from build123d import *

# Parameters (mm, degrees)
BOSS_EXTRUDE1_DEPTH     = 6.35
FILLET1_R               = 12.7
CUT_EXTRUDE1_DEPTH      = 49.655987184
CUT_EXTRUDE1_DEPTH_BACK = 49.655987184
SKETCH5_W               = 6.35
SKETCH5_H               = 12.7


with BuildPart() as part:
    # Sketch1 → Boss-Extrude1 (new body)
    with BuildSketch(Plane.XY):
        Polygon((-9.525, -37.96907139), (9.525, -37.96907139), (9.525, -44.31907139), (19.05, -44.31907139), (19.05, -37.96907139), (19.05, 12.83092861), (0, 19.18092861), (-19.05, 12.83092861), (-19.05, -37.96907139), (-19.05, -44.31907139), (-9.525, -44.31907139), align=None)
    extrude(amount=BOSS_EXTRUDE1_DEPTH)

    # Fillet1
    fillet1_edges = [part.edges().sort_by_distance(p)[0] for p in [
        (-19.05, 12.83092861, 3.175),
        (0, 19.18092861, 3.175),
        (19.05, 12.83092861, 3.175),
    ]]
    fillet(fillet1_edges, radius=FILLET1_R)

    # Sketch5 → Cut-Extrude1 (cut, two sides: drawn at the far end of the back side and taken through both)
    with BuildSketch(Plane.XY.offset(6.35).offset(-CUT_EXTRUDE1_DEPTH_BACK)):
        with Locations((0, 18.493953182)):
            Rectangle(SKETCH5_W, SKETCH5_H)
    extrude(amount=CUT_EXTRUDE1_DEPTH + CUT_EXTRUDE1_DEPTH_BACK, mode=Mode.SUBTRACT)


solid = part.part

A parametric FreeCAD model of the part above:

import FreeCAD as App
import Part
import Sketcher
from FreeCAD import Vector
Q = App.Units.Quantity


def edges_at(feature, points):
    """Names of the edges that pass closest to the given points."""
    edges = feature.Shape.Edges
    near = lambda p: min(range(len(edges)), key=lambda i: edges[i].distToShape(Part.Vertex(*p))[0])
    return sorted({f"Edge{near(p) + 1}" for p in points})

doc = App.newDocument("Part")
params = doc.addObject("Spreadsheet::Sheet", "Params")
for row, (alias, value) in enumerate([
    ("sketch1_width", "0.75 in"),
    ("sketch1_height", "0.25 in"),
    ("pad1_length", "0.25 in"),
    ("fillet_radius", "0.5 in"),
    ("sketch2_height", "0.5 in"),
    ("sketch2_width", "0.25 in"),
], start=1):
    params.set(f"A{row}", alias)
    params.set(f"B{row}", "=" + value)
    params.setAlias(f"B{row}", alias)

body = doc.addObject("PartDesign::Body", "Body")

# Sketch on XY plane
sketch1 = body.newObject("Sketcher::SketchObject", "Sketch")
sketch1.AttachmentSupport = (doc.getObject("XY_Plane"), [""])
sketch1.MapMode = "FlatFace"
sketch1.addGeometry(Part.LineSegment(Vector(-10, -38, 0), Vector(10, -38, 0)), False)
sketch1.addGeometry(Part.LineSegment(Vector(10, -38, 0), Vector(10, -44, 0)), False)
sketch1.addGeometry(Part.LineSegment(Vector(10, -44, 0), Vector(19, -44, 0)), False)
sketch1.addGeometry(Part.LineSegment(Vector(19, -44, 0), Vector(19, 13, 0)), False)
sketch1.addGeometry(Part.LineSegment(Vector(19, 13, 0), Vector(0, 19, 0)), False)
sketch1.addGeometry(Part.LineSegment(Vector(0, 19, 0), Vector(-19, 13, 0)), False)
sketch1.addGeometry(Part.LineSegment(Vector(-19, 13, 0), Vector(-19, -44, 0)), False)
sketch1.addGeometry(Part.LineSegment(Vector(-19, -44, 0), Vector(-10, -44, 0)), False)
sketch1.addGeometry(Part.LineSegment(Vector(-10, -44, 0), Vector(-10, -38, 0)), False)
sketch1.addConstraint(Sketcher.Constraint("Coincident", 0, 2, 1, 1))
sketch1.addConstraint(Sketcher.Constraint("Coincident", 1, 2, 2, 1))
sketch1.addConstraint(Sketcher.Constraint("Coincident", 2, 2, 3, 1))
sketch1.addConstraint(Sketcher.Constraint("Coincident", 3, 2, 4, 1))
sketch1.addConstraint(Sketcher.Constraint("Coincident", 4, 2, 5, 1))
sketch1.addConstraint(Sketcher.Constraint("Coincident", 5, 2, 6, 1))
sketch1.addConstraint(Sketcher.Constraint("Coincident", 6, 2, 7, 1))
sketch1.addConstraint(Sketcher.Constraint("Coincident", 7, 2, 8, 1))
sketch1.addConstraint(Sketcher.Constraint("Coincident", 8, 2, 0, 1))
sketch1.addConstraint(Sketcher.Constraint("Horizontal", 0))
sketch1.addConstraint(Sketcher.Constraint("Vertical", 1))
sketch1.addConstraint(Sketcher.Constraint("Horizontal", 2))
sketch1.addConstraint(Sketcher.Constraint("Vertical", 3))
sketch1.addConstraint(Sketcher.Constraint("Vertical", 6))
sketch1.addConstraint(Sketcher.Constraint("Horizontal", 7))
sketch1.addConstraint(Sketcher.Constraint("Vertical", 8))
sketch1.addConstraint(Sketcher.Constraint("Symmetric", 3, 2, 5, 2, -2))
sketch1.addConstraint(Sketcher.Constraint("Symmetric", 1, 2, 7, 2, -2))
sketch1.addConstraint(Sketcher.Constraint("PointOnObject", 4, 2, -2))
sketch1.addConstraint(Sketcher.Constraint("DistanceY", 0, 2, 3, 2, Q("2 in")))
sketch1.addConstraint(Sketcher.Constraint("DistanceX", 0, 1, 0, 2, Q("0.75 in")))
sketch1.addConstraint(Sketcher.Constraint("DistanceY", 1, 2, 1, 1, Q("0.25 in")))
sketch1.addConstraint(Sketcher.Constraint("DistanceY", 1, 2, 4, 2, Q("2.5 in")))
sketch1.addConstraint(Sketcher.Constraint("DistanceX", 5, 2, 3, 2, Q("1.5 in")))
sketch1.addConstraint(Sketcher.Constraint("DistanceY", 0, 2, -1, 1, 37.969071))
sketch1.setExpression("Constraints[20]", "Params.sketch1_width")
sketch1.setExpression("Constraints[21]", "Params.sketch1_height")
pad1 = body.newObject("PartDesign::Pad", "Pad")
pad1.Profile = sketch1
pad1.setExpression("Length", "Params.pad1_length")
doc.recompute()

fillet = body.newObject("PartDesign::Fillet", "Fillet")
fillet.Base = (pad1, edges_at(pad1, [(-19.05, 12.831, 3.175), (0, 19.181, 3.175), (19.05, 12.831, 3.175)]))
fillet.setExpression("Radius", "Params.fillet_radius")

# Sketch on XY plane
sketch2 = body.newObject("Sketcher::SketchObject", "Sketch001")
sketch2.AttachmentSupport = (doc.getObject("XY_Plane"), [""])
sketch2.MapMode = "FlatFace"
sketch2.AttachmentOffset = App.Placement(Vector(0, 0, 0.25 * 25.4), App.Rotation())
sketch2.addGeometry(Part.LineSegment(Vector(-3, 25, 0), Vector(-3, 12, 0)), False)
sketch2.addGeometry(Part.LineSegment(Vector(-3, 12, 0), Vector(3, 12, 0)), False)
sketch2.addGeometry(Part.LineSegment(Vector(3, 12, 0), Vector(3, 25, 0)), False)
sketch2.addGeometry(Part.LineSegment(Vector(3, 25, 0), Vector(-3, 25, 0)), False)
sketch2.addConstraint(Sketcher.Constraint("Coincident", 0, 2, 1, 1))
sketch2.addConstraint(Sketcher.Constraint("Coincident", 1, 2, 2, 1))
sketch2.addConstraint(Sketcher.Constraint("Coincident", 2, 2, 3, 1))
sketch2.addConstraint(Sketcher.Constraint("Coincident", 3, 2, 0, 1))
sketch2.addConstraint(Sketcher.Constraint("Vertical", 0))
sketch2.addConstraint(Sketcher.Constraint("Horizontal", 1))
sketch2.addConstraint(Sketcher.Constraint("Vertical", 2))
sketch2.addConstraint(Sketcher.Constraint("Horizontal", 3))
sketch2.addConstraint(Sketcher.Constraint("DistanceY", 0, 2, 0, 1, Q("0.5 in")))
sketch2.addConstraint(Sketcher.Constraint("DistanceX", 1, 1, 1, 2, Q("0.25 in")))
sketch2.addConstraint(Sketcher.Constraint("DistanceX", 0, 2, -1, 1, Q("0.125 in")))
sketch2.addConstraint(Sketcher.Constraint("DistanceY", -1, 1, 0, 2, 12.143953))
sketch2.setExpression("Constraints[8]", "Params.sketch2_height")
sketch2.setExpression("Constraints[9]", "Params.sketch2_width")
pocket1 = body.newObject("PartDesign::Pocket", "Pocket")
pocket1.Profile = sketch2
pocket1.Type = "ThroughAll"
pocket1.Midplane = True

doc.recompute()
